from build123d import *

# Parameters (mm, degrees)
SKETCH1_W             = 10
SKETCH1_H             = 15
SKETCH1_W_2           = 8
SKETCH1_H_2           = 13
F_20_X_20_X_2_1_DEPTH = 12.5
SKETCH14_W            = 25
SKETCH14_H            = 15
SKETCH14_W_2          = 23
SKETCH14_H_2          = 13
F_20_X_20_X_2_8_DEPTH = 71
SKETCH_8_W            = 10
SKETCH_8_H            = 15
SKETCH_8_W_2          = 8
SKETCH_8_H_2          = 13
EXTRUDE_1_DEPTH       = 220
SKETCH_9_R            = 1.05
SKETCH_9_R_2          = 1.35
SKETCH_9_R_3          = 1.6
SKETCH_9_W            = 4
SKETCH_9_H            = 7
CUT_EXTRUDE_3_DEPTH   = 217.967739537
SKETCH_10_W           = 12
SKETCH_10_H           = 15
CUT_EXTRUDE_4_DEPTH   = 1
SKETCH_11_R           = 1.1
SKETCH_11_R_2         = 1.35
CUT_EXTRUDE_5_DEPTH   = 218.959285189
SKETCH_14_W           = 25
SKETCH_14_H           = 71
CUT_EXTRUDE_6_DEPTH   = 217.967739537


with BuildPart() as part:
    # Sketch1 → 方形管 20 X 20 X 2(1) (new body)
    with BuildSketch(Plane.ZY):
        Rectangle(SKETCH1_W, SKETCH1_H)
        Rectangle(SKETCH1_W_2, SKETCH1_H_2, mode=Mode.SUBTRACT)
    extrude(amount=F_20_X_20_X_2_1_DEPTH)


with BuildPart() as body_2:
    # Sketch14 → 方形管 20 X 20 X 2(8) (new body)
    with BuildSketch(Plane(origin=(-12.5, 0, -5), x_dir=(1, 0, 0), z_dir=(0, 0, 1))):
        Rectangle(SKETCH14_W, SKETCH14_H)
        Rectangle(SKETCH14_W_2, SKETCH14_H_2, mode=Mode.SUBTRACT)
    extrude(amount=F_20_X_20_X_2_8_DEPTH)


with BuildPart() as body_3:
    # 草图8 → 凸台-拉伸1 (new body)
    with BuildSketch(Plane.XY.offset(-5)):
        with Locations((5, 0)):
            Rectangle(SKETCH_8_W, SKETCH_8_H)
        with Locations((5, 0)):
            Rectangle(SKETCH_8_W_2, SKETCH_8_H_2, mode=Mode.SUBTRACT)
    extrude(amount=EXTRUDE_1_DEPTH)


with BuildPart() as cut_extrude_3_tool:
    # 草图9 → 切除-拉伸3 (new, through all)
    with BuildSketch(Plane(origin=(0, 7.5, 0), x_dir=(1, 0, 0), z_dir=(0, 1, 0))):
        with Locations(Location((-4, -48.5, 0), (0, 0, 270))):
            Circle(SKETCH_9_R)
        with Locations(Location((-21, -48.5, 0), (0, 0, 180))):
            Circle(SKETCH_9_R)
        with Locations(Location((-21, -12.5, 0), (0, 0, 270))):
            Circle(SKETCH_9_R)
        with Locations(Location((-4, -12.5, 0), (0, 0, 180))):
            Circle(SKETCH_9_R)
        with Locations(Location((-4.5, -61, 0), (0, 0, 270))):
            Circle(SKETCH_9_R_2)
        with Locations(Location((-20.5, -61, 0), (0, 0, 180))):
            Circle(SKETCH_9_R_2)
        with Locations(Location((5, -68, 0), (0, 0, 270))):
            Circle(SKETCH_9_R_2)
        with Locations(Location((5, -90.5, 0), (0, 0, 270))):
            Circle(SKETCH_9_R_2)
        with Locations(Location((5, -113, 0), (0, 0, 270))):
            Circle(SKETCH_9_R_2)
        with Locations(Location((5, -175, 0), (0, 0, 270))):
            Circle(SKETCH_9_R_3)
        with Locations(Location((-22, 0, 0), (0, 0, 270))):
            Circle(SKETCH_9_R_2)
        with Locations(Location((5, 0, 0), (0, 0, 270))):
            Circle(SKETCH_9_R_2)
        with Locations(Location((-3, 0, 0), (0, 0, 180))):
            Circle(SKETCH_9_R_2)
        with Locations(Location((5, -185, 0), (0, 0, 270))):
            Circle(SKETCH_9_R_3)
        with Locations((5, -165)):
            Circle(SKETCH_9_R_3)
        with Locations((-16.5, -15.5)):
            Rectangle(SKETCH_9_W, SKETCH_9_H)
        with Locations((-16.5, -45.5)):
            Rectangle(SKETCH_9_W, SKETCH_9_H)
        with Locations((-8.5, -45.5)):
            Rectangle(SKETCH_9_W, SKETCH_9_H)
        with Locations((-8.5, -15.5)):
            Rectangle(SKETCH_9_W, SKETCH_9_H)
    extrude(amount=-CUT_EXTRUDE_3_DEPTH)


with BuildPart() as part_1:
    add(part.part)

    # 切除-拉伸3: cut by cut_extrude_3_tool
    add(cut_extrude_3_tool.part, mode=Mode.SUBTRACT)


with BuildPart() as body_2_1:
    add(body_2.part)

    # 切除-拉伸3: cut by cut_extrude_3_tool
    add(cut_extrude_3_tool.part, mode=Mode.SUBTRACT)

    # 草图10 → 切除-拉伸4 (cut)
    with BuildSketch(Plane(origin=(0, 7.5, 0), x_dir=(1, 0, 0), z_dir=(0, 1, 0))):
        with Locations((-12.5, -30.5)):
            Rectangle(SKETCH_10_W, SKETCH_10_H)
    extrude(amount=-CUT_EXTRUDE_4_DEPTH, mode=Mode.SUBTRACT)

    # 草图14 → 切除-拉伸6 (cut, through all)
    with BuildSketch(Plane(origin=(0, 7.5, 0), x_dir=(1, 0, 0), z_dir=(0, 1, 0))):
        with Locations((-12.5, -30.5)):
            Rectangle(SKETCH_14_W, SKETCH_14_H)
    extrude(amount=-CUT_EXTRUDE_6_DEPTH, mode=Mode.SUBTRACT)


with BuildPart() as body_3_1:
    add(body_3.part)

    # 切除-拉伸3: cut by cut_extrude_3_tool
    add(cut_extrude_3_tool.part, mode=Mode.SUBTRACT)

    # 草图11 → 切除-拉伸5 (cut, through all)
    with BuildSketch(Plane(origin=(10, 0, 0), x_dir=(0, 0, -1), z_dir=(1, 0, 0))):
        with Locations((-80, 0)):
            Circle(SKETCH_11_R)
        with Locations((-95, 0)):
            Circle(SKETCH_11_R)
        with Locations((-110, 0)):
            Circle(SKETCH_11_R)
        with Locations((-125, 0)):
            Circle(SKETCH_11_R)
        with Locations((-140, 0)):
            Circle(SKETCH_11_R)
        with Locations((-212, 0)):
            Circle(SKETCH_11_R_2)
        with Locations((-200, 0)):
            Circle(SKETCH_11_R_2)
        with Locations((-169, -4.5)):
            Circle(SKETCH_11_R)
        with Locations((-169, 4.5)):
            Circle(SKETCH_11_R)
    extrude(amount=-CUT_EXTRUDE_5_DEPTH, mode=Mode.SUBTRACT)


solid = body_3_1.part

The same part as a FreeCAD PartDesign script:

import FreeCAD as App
import Part
import Sketcher

V = App.Vector
Q = App.Units.Quantity


def add_polygon(sketch, points):
    """Adds a closed chain of lines whose ends are joined by coincident constraints."""
    first, n = sketch.GeometryCount, len(points)
    for a, b in zip(points, points[1:] + points[:1]):
        sketch.addGeometry(Part.LineSegment(App.Vector(*a, 0), App.Vector(*b, 0)), False)
    for i in range(n):
        sketch.addConstraint(Sketcher.Constraint("Coincident", first + i, 2, first + (i + 1) % n, 1))

doc = App.newDocument("Part")
body = doc.addObject("PartDesign::Body", "Body")

sketch1 = body.newObject("Sketcher::SketchObject", "Sketch")
sketch1.AttachmentSupport = (doc.getObject("YZ_Plane"), [""])
sketch1.MapMode = "FlatFace"
add_polygon(sketch1, [(8, -5), (-8, -5), (-8, 5), (8, 5)])
add_polygon(sketch1, [(-6, 4), (-6, -4), (6, -4), (6, 4)])
sketch1.addConstraint(Sketcher.Constraint("Horizontal", 0))
sketch1.addConstraint(Sketcher.Constraint("Vertical", 1))
sketch1.addConstraint(Sketcher.Constraint("Horizontal", 2))
sketch1.addConstraint(Sketcher.Constraint("Vertical", 3))
sketch1.addConstraint(Sketcher.Constraint("Vertical", 4))
sketch1.addConstraint(Sketcher.Constraint("Horizontal", 5))
sketch1.addConstraint(Sketcher.Constraint("Vertical", 6))
sketch1.addConstraint(Sketcher.Constraint("Horizontal", 7))
sketch1.addConstraint(Sketcher.Constraint("Symmetric", 0, 2, 2, 2, -1, 1))
sketch1.addConstraint(Sketcher.Constraint("Symmetric", 4, 2, 6, 2, -1, 1))
sketch1.addConstraint(Sketcher.Constraint("DistanceX", 0, 2, 0, 1, Q("15 mm")))
sketch1.addConstraint(Sketcher.Constraint("DistanceX", 5, 1, 5, 2, Q("13 mm")))
sketch1.addConstraint(Sketcher.Constraint("DistanceY", 1, 1, 1, 2, Q("10 mm")))
sketch1.addConstraint(Sketcher.Constraint("DistanceY", 4, 2, 4, 1, Q("8 mm")))
pad1 = body.newObject("PartDesign::Pad", "Pad")
pad1.Profile = sketch1
pad1.Length = 12.5
pad1.Reversed = True
body2 = doc.addObject("PartDesign::Body", "Body001")

sketch2 = body2.newObject("Sketcher::SketchObject", "Sketch001")
sketch2.AttachmentSupport = (doc.getObject("XY_Plane001"), [""])
sketch2.MapMode = "FlatFace"
sketch2.AttachmentOffset = App.Placement(V(0, 0, -5), App.Rotation())
add_polygon(sketch2, [(-25, 8), (-25, -8), (0, -8), (0, 8)])
add_polygon(sketch2, [(-1, -6), (-24, -6), (-24, 6), (-1, 6)])
sketch2.addConstraint(Sketcher.Constraint("Vertical", 0))
sketch2.addConstraint(Sketcher.Constraint("Horizontal", 1))
sketch2.addConstraint(Sketcher.Constraint("Vertical", 2))
sketch2.addConstraint(Sketcher.Constraint("Horizontal", 3))
sketch2.addConstraint(Sketcher.Constraint("Horizontal", 4))
sketch2.addConstraint(Sketcher.Constraint("Vertical", 5))
sketch2.addConstraint(Sketcher.Constraint("Horizontal", 6))
sketch2.addConstraint(Sketcher.Constraint("Vertical", 7))
sketch2.addConstraint(Sketcher.Constraint("Symmetric", 1, 2, 2, 2, -1, 1))
sketch2.addConstraint(Sketcher.Constraint("DistanceX", 1, 1, 1, 2, Q("25 mm")))
sketch2.addConstraint(Sketcher.Constraint("DistanceX", 4, 2, 4, 1, Q("23 mm")))
sketch2.addConstraint(Sketcher.Constraint("DistanceY", 0, 2, 0, 1, Q("15 mm")))
sketch2.addConstraint(Sketcher.Constraint("DistanceY", 5, 1, 5, 2, Q("13 mm")))
sketch2.addConstraint(Sketcher.Constraint("DistanceX", 4, 2, -1, 1, Q("24 mm")))
sketch2.addConstraint(Sketcher.Constraint("DistanceY", 0, 2, 4, 2, Q("1 mm")))
pad2 = body2.newObject("PartDesign::Pad", "Pad001")
pad2.Profile = sketch2
pad2.Length = 71
body3 = doc.addObject("PartDesign::Body", "Body002")

sketch3 = body3.newObject("Sketcher::SketchObject", "Sketch002")
sketch3.AttachmentSupport = (doc.getObject("XY_Plane002"), [""])
sketch3.MapMode = "FlatFace"
sketch3.AttachmentOffset = App.Placement(V(0, 0, -5), App.Rotation())
add_polygon(sketch3, [(0, 8), (0, -8), (10, -8), (10, 8)])
add_polygon(sketch3, [(9, -6), (1, -6), (1, 6), (9, 6)])
sketch3.addConstraint(Sketcher.Constraint("Vertical", 0))
sketch3.addConstraint(Sketcher.Constraint("Horizontal", 1))
sketch3.addConstraint(Sketcher.Constraint("Vertical", 2))
sketch3.addConstraint(Sketcher.Constraint("Horizontal", 3))
sketch3.addConstraint(Sketcher.Constraint("Horizontal", 4))
sketch3.addConstraint(Sketcher.Constraint("Vertical", 5))
sketch3.addConstraint(Sketcher.Constraint("Horizontal", 6))
sketch3.addConstraint(Sketcher.Constraint("Vertical", 7))
sketch3.addConstraint(Sketcher.Constraint("Symmetric", 0, 2, 3, 2, -1, 1))
sketch3.addConstraint(Sketcher.Constraint("DistanceX", 1, 1, 1, 2, Q("10 mm")))
sketch3.addConstraint(Sketcher.Constraint("DistanceX", 4, 2, 4, 1, Q("8 mm")))
sketch3.addConstraint(Sketcher.Constraint("DistanceY", 0, 2, 0, 1, Q("15 mm")))
sketch3.addConstraint(Sketcher.Constraint("DistanceY", 5, 1, 5, 2, Q("13 mm")))
sketch3.addConstraint(Sketcher.Constraint("DistanceX", -1, 1, 4, 2, Q("1 mm")))
sketch3.addConstraint(Sketcher.Constraint("DistanceY", 0, 2, 4, 2, Q("1 mm")))
pad3 = body3.newObject("PartDesign::Pad", "Pad002")
pad3.Profile = sketch3
pad3.Length = 220
body4 = doc.addObject("PartDesign::Body", "Body003")
body4.AllowCompound = True

sketch4 = body4.newObject("Sketcher::SketchObject", "Sketch003")
sketch4.AttachmentSupport = (doc.getObject("XZ_Plane003"), [""])
sketch4.MapMode = "FlatFace"
sketch4.AttachmentOffset = App.Placement(V(0, 0, -7.5), App.Rotation())
sketch4.addGeometry(Part.Circle(V(-4, 48.5, 0), V(0, 0, 1), 1.1), False)
sketch4.addGeometry(Part.Circle(V(-21, 48.5, 0), V(0, 0, 1), 1.1), False)
sketch4.addGeometry(Part.Circle(V(-21, 12.5, 0), V(0, 0, 1), 1.1), False)
sketch4.addGeometry(Part.Circle(V(-4, 12.5, 0), V(0, 0, 1), 1.1), False)
sketch4.addGeometry(Part.Circle(V(-4.5, 61, 0), V(0, 0, 1), 1.4), False)
sketch4.addGeometry(Part.Circle(V(-20.5, 61, 0), V(0, 0, 1), 1.4), False)
sketch4.addGeometry(Part.Circle(V(5, 68, 0), V(0, 0, 1), 1.4), False)
sketch4.addGeometry(Part.Circle(V(5, 90.5, 0), V(0, 0, 1), 1.4), False)
sketch4.addGeometry(Part.Circle(V(5, 113, 0), V(0, 0, 1), 1.4), False)
sketch4.addGeometry(Part.Circle(V(5, 175, 0), V(0, 0, 1), 1.6), False)
sketch4.addGeometry(Part.Circle(V(-22, 0, 0), V(0, 0, 1), 1.4), False)
sketch4.addGeometry(Part.Circle(V(5, 0, 0), V(0, 0, 1), 1.4), False)
sketch4.addGeometry(Part.Circle(V(-3, 0, 0), V(0, 0, 1), 1.4), False)
sketch4.addGeometry(Part.Circle(V(5, 185, 0), V(0, 0, 1), 1.6), False)
sketch4.addGeometry(Part.Circle(V(5, 165, 0), V(0, 0, 1), 1.6), False)
add_polygon(sketch4, [(-18.5, 12), (-18.5, 19), (-14.5, 19), (-14.5, 12)])
add_polygon(sketch4, [(-18.5, 42), (-18.5, 49), (-14.5, 49), (-14.5, 42)])
add_polygon(sketch4, [(-10.5, 42), (-10.5, 49), (-6.5, 49), (-6.5, 42)])
add_polygon(sketch4, [(-10.5, 12), (-10.5, 19), (-6.5, 19), (-6.5, 12)])
sketch4.addConstraint(Sketcher.Constraint("Vertical", 15))
sketch4.addConstraint(Sketcher.Constraint("Horizontal", 16))
sketch4.addConstraint(Sketcher.Constraint("Vertical", 17))
sketch4.addConstraint(Sketcher.Constraint("Horizontal", 18))
sketch4.addConstraint(Sketcher.Constraint("Vertical", 19))
sketch4.addConstraint(Sketcher.Constraint("Horizontal", 20))
sketch4.addConstraint(Sketcher.Constraint("Vertical", 21))
sketch4.addConstraint(Sketcher.Constraint("Horizontal", 22))
sketch4.addConstraint(Sketcher.Constraint("Vertical", 23))
sketch4.addConstraint(Sketcher.Constraint("Horizontal", 24))
sketch4.addConstraint(Sketcher.Constraint("Vertical", 25))
sketch4.addConstraint(Sketcher.Constraint("Horizontal", 26))
sketch4.addConstraint(Sketcher.Constraint("Vertical", 27))
sketch4.addConstraint(Sketcher.Constraint("Horizontal", 28))
sketch4.addConstraint(Sketcher.Constraint("Vertical", 29))
sketch4.addConstraint(Sketcher.Constraint("Horizontal", 30))
sketch4.addConstraint(Sketcher.Constraint("Equal", 0, 1))
sketch4.addConstraint(Sketcher.Constraint("Equal", 1, 2))
sketch4.addConstraint(Sketcher.Constraint("Equal", 2, 3))
sketch4.addConstraint(Sketcher.Constraint("Equal", 4, 5))
sketch4.addConstraint(Sketcher.Constraint("Equal", 5, 6))
sketch4.addConstraint(Sketcher.Constraint("Equal", 6, 7))
sketch4.addConstraint(Sketcher.Constraint("Equal", 7, 8))
sketch4.addConstraint(Sketcher.Constraint("Equal", 8, 10))
sketch4.addConstraint(Sketcher.Constraint("Equal", 10, 11))
sketch4.addConstraint(Sketcher.Constraint("Equal", 11, 12))
sketch4.addConstraint(Sketcher.Constraint("Equal", 9, 13))
sketch4.addConstraint(Sketcher.Constraint("Equal", 13, 14))
sketch4.addConstraint(Sketcher.Constraint("PointOnObject", 10, 3, -1))
sketch4.addConstraint(Sketcher.Constraint("PointOnObject", 11, 3, -1))
sketch4.addConstraint(Sketcher.Constraint("PointOnObject", 12, 3, -1))
sketch4.addConstraint(Sketcher.Constraint("Horizontal", 0, 3, 1, 3))
sketch4.addConstraint(Sketcher.Constraint("Horizontal", 2, 3, 3, 3))
sketch4.addConstraint(Sketcher.Constraint("Horizontal", 4, 3, 5, 3))
sketch4.addConstraint(Sketcher.Constraint("Horizontal", 20, 2, 23, 2))
sketch4.addConstraint(Sketcher.Constraint("Horizontal", 22, 2, 25, 2))
sketch4.addConstraint(Sketcher.Constraint("Horizontal", 16, 2, 27, 2))
sketch4.addConstraint(Sketcher.Constraint("Horizontal", 18, 2, 29, 2))
sketch4.addConstraint(Sketcher.Constraint("Vertical", 1, 3, 2, 3))
sketch4.addConstraint(Sketcher.Constraint("Vertical", 0, 3, 3, 3))
sketch4.addConstraint(Sketcher.Constraint("Vertical", 6, 3, 7, 3))
sketch4.addConstraint(Sketcher.Constraint("Vertical", 7, 3, 8, 3))
sketch4.addConstraint(Sketcher.Constraint("Vertical", 8, 3, 9, 3))
sketch4.addConstraint(Sketcher.Constraint("Vertical", 9, 3, 11, 3))
sketch4.addConstraint(Sketcher.Constraint("Vertical", 11, 3, 13, 3))
sketch4.addConstraint(Sketcher.Constraint("Vertical", 13, 3, 14, 3))
sketch4.addConstraint(Sketcher.Constraint("Vertical", 18, 2, 19, 2))
sketch4.addConstraint(Sketcher.Constraint("Vertical", 17, 2, 20, 2))
sketch4.addConstraint(Sketcher.Constraint("Vertical", 26, 2, 27, 2))
sketch4.addConstraint(Sketcher.Constraint("Vertical", 25, 2, 28, 2))
sketch4.addConstraint(Sketcher.Constraint("Equal", 22, 24))
sketch4.addConstraint(Sketcher.Constraint("Equal", 17, 19))
sketch4.addConstraint(Sketcher.Constraint("Diameter", 0, Q("2.1 mm")))
sketch4.addConstraint(Sketcher.Constraint("Diameter", 4, Q("2.7 mm")))
sketch4.addConstraint(Sketcher.Constraint("Diameter", 9, Q("3.2 mm")))
sketch4.addConstraint(Sketcher.Constraint("DistanceX", 16, 1, 16, 2, Q("4 mm")))
sketch4.addConstraint(Sketcher.Constraint("DistanceY", 15, 1, 15, 2, Q("7 mm")))
sketch4.addConstraint(Sketcher.Constraint("DistanceX", 0, 3, -1, 1, Q("4 mm")))
sketch4.addConstraint(Sketcher.Constraint("DistanceX", 1, 3, -1, 1, Q("21 mm")))
sketch4.addConstraint(Sketcher.Constraint("DistanceY", -1, 1, 4, 3, Q("61 mm")))
sketch4.addConstraint(Sketcher.Constraint("DistanceX", -1, 1, 6, 3, Q("5 mm")))
sketch4.addConstraint(Sketcher.Constraint("DistanceY", -1, 1, 6, 3, Q("68 mm")))
sketch4.addConstraint(Sketcher.Constraint("DistanceY", -1, 1, 8, 3, Q("113 mm")))
sketch4.addConstraint(Sketcher.Constraint("DistanceY", -1, 1, 9, 3, Q("175 mm")))
sketch4.addConstraint(Sketcher.Constraint("DistanceX", 10, 3, -1, 1, Q("22 mm")))
sketch4.addConstraint(Sketcher.Constraint("DistanceX", 12, 3, -1, 1, Q("3 mm")))
sketch4.addConstraint(Sketcher.Constraint("DistanceY", -1, 1, 13, 3, Q("185 mm")))
sketch4.addConstraint(Sketcher.Constraint("DistanceY", -1, 1, 14, 3, Q("165 mm")))
sketch4.addConstraint(Sketcher.Constraint("DistanceY", -1, 1, 15, 2, Q("19 mm")))
sketch4.addConstraint(Sketcher.Constraint("DistanceY", -1, 1, 19, 2, Q("49 mm")))
sketch4.addConstraint(Sketcher.Constraint("DistanceY", 2, 3, 1, 3, Q("36 mm")))
sketch4.addConstraint(Sketcher.Constraint("DistanceX", 5, 3, 4, 3, Q("16 mm")))
sketch4.addConstraint(Sketcher.Constraint("DistanceY", 0, 3, 7, 3, Q("42 mm")))
sketch4.addConstraint(Sketcher.Constraint("DistanceX", 5, 3, 19, 2, Q("2 mm")))
sketch4.addConstraint(Sketcher.Constraint("DistanceX", 20, 2, 23, 2, Q("4 mm")))
sketch4.addConstraint(Sketcher.Constraint("DistanceY", -1, 1, 0, 3, Q("48.5 mm")))
sketch4.addConstraint(Sketcher.Constraint("DistanceX", 4, 3, -1, 1, Q("4.5 mm")))
pad4 = body4.newObject("PartDesign::Pad", "Pad003")
pad4.Profile = sketch4
pad4.Length = 217.96774
doc.recompute()

body5 = doc.addObject("PartDesign::Body", "Body004")
body5.BaseFeature = body4
boolean = body.newObject("PartDesign::Boolean", "Boolean")
boolean.Type = "Cut"
boolean.addObjects([body5])
doc.recompute()

body6 = doc.addObject("PartDesign::Body", "Body005")
body6.BaseFeature = body4
boolean2 = body2.newObject("PartDesign::Boolean", "Boolean001")
boolean2.Type = "Cut"
boolean2.addObjects([body6])
doc.recompute()

sketch5 = body2.newObject("Sketcher::SketchObject", "Sketch004")
sketch5.AttachmentSupport = (doc.getObject("XZ_Plane001"), [""])
sketch5.MapMode = "FlatFace"
sketch5.AttachmentOffset = App.Placement(V(0, 0, -7.5), App.Rotation())
add_polygon(sketch5, [(-18, 23), (-18, 38), (-6, 38), (-6, 23)])
sketch5.addConstraint(Sketcher.Constraint("Vertical", 0))
sketch5.addConstraint(Sketcher.Constraint("Horizontal", 1))
sketch5.addConstraint(Sketcher.Constraint("Vertical", 2))
sketch5.addConstraint(Sketcher.Constraint("Horizontal", 3))
sketch5.addConstraint(Sketcher.Constraint("DistanceX", 1, 1, 1, 2, Q("12 mm")))
sketch5.addConstraint(Sketcher.Constraint("DistanceY", 0, 1, 0, 2, Q("15 mm")))
sketch5.addConstraint(Sketcher.Constraint("DistanceY", -1, 1, 0, 2, Q("38 mm")))
sketch5.addConstraint(Sketcher.Constraint("DistanceX", 0, 2, -1, 1, Q("18.5 mm")))
pocket1 = body2.newObject("PartDesign::Pocket", "Pocket")
pocket1.Profile = sketch5
pocket1.Length = 1
pocket1.Reversed = True

sketch6 = body2.newObject("Sketcher::SketchObject", "Sketch005")
sketch6.AttachmentSupport = (doc.getObject("XZ_Plane001"), [""])
sketch6.MapMode = "FlatFace"
sketch6.AttachmentOffset = App.Placement(V(0, 0, -7.5), App.Rotation())
add_polygon(sketch6, [(-25, -5), (-25, 66), (0, 66), (0, -5)])
sketch6.addConstraint(Sketcher.Constraint("Vertical", 0))
sketch6.addConstraint(Sketcher.Constraint("Horizontal", 1))
sketch6.addConstraint(Sketcher.Constraint("Vertical", 2))
sketch6.addConstraint(Sketcher.Constraint("Horizontal", 3))
sketch6.addConstraint(Sketcher.Constraint("PointOnObject", 1, 2, -2))
sketch6.addConstraint(Sketcher.Constraint("DistanceX", 1, 1, 1, 2, Q("25 mm")))
sketch6.addConstraint(Sketcher.Constraint("DistanceY", 0, 1, 0, 2, Q("71 mm")))
sketch6.addConstraint(Sketcher.Constraint("DistanceY", -1, 1, 0, 2, Q("66 mm")))
pocket2 = body2.newObject("PartDesign::Pocket", "Pocket001")
pocket2.Profile = sketch6
pocket2.Type = "ThroughAll"
pocket2.Reversed = True
doc.recompute()

boolean3 = body3.newObject("PartDesign::Boolean", "Boolean002")
boolean3.Type = "Cut"
boolean3.addObjects([body4])

sketch7 = body3.newObject("Sketcher::SketchObject", "Sketch006")
sketch7.AttachmentSupport = (doc.getObject("YZ_Plane002"), [""])
sketch7.MapMode = "FlatFace"
sketch7.AttachmentOffset = App.Placement(V(0, 0, 10), App.Rotation())
sketch7.addGeometry(Part.Circle(V(0, 80, 0), V(0, 0, 1), 1.1), False)
sketch7.addGeometry(Part.Circle(V(0, 95, 0), V(0, 0, 1), 1.1), False)
sketch7.addGeometry(Part.Circle(V(0, 110, 0), V(0, 0, 1), 1.1), False)
sketch7.addGeometry(Part.Circle(V(0, 125, 0), V(0, 0, 1), 1.1), False)
sketch7.addGeometry(Part.Circle(V(0, 140, 0), V(0, 0, 1), 1.1), False)
sketch7.addGeometry(Part.Circle(V(0, 212, 0), V(0, 0, 1), 1.4), False)
sketch7.addGeometry(Part.Circle(V(0, 200, 0), V(0, 0, 1), 1.4), False)
sketch7.addGeometry(Part.Circle(V(-4.5, 169, 0), V(0, 0, 1), 1.1), False)
sketch7.addGeometry(Part.Circle(V(4.5, 169, 0), V(0, 0, 1), 1.1), False)
sketch7.addConstraint(Sketcher.Constraint("Equal", 0, 1))
sketch7.addConstraint(Sketcher.Constraint("Equal", 1, 2))
sketch7.addConstraint(Sketcher.Constraint("Equal", 2, 3))
sketch7.addConstraint(Sketcher.Constraint("Equal", 3, 4))
sketch7.addConstraint(Sketcher.Constraint("Equal", 5, 6))
sketch7.addConstraint(Sketcher.Constraint("Equal", 4, 7))
sketch7.addConstraint(Sketcher.Constraint("Equal", 7, 8))
sketch7.addConstraint(Sketcher.Constraint("Symmetric", 7, 3, 8, 3, -2))
sketch7.addConstraint(Sketcher.Constraint("PointOnObject", 0, 3, -2))
sketch7.addConstraint(Sketcher.Constraint("PointOnObject", 1, 3, -2))
sketch7.addConstraint(Sketcher.Constraint("PointOnObject", 2, 3, -2))
sketch7.addConstraint(Sketcher.Constraint("PointOnObject", 3, 3, -2))
sketch7.addConstraint(Sketcher.Constraint("PointOnObject", 4, 3, -2))
sketch7.addConstraint(Sketcher.Constraint("PointOnObject", 5, 3, -2))
sketch7.addConstraint(Sketcher.Constraint("PointOnObject", 6, 3, -2))
sketch7.addConstraint(Sketcher.Constraint("Diameter", 0, Q("2.2 mm")))
sketch7.addConstraint(Sketcher.Constraint("Diameter", 5, Q("2.7 mm")))
sketch7.addConstraint(Sketcher.Constraint("DistanceY", -1, 1, 0, 3, Q("80 mm")))
sketch7.addConstraint(Sketcher.Constraint("DistanceY", -1, 1, 1, 3, Q("95 mm")))
sketch7.addConstraint(Sketcher.Constraint("DistanceY", -1, 1, 2, 3, Q("110 mm")))
sketch7.addConstraint(Sketcher.Constraint("DistanceY", -1, 1, 3, 3, Q("125 mm")))
sketch7.addConstraint(Sketcher.Constraint("DistanceY", -1, 1, 4, 3, Q("140 mm")))
sketch7.addConstraint(Sketcher.Constraint("DistanceY", -1, 1, 5, 3, Q("212 mm")))
sketch7.addConstraint(Sketcher.Constraint("DistanceY", -1, 1, 6, 3, Q("200 mm")))
sketch7.addConstraint(Sketcher.Constraint("DistanceY", -1, 1, 7, 3, Q("169 mm")))
sketch7.addConstraint(Sketcher.Constraint("DistanceX", 7, 3, 8, 3, Q("9 mm")))
pocket3 = body3.newObject("PartDesign::Pocket", "Pocket002")
pocket3.Profile = sketch7
pocket3.Type = "ThroughAll"
body.Visibility = False

doc.recompute()
